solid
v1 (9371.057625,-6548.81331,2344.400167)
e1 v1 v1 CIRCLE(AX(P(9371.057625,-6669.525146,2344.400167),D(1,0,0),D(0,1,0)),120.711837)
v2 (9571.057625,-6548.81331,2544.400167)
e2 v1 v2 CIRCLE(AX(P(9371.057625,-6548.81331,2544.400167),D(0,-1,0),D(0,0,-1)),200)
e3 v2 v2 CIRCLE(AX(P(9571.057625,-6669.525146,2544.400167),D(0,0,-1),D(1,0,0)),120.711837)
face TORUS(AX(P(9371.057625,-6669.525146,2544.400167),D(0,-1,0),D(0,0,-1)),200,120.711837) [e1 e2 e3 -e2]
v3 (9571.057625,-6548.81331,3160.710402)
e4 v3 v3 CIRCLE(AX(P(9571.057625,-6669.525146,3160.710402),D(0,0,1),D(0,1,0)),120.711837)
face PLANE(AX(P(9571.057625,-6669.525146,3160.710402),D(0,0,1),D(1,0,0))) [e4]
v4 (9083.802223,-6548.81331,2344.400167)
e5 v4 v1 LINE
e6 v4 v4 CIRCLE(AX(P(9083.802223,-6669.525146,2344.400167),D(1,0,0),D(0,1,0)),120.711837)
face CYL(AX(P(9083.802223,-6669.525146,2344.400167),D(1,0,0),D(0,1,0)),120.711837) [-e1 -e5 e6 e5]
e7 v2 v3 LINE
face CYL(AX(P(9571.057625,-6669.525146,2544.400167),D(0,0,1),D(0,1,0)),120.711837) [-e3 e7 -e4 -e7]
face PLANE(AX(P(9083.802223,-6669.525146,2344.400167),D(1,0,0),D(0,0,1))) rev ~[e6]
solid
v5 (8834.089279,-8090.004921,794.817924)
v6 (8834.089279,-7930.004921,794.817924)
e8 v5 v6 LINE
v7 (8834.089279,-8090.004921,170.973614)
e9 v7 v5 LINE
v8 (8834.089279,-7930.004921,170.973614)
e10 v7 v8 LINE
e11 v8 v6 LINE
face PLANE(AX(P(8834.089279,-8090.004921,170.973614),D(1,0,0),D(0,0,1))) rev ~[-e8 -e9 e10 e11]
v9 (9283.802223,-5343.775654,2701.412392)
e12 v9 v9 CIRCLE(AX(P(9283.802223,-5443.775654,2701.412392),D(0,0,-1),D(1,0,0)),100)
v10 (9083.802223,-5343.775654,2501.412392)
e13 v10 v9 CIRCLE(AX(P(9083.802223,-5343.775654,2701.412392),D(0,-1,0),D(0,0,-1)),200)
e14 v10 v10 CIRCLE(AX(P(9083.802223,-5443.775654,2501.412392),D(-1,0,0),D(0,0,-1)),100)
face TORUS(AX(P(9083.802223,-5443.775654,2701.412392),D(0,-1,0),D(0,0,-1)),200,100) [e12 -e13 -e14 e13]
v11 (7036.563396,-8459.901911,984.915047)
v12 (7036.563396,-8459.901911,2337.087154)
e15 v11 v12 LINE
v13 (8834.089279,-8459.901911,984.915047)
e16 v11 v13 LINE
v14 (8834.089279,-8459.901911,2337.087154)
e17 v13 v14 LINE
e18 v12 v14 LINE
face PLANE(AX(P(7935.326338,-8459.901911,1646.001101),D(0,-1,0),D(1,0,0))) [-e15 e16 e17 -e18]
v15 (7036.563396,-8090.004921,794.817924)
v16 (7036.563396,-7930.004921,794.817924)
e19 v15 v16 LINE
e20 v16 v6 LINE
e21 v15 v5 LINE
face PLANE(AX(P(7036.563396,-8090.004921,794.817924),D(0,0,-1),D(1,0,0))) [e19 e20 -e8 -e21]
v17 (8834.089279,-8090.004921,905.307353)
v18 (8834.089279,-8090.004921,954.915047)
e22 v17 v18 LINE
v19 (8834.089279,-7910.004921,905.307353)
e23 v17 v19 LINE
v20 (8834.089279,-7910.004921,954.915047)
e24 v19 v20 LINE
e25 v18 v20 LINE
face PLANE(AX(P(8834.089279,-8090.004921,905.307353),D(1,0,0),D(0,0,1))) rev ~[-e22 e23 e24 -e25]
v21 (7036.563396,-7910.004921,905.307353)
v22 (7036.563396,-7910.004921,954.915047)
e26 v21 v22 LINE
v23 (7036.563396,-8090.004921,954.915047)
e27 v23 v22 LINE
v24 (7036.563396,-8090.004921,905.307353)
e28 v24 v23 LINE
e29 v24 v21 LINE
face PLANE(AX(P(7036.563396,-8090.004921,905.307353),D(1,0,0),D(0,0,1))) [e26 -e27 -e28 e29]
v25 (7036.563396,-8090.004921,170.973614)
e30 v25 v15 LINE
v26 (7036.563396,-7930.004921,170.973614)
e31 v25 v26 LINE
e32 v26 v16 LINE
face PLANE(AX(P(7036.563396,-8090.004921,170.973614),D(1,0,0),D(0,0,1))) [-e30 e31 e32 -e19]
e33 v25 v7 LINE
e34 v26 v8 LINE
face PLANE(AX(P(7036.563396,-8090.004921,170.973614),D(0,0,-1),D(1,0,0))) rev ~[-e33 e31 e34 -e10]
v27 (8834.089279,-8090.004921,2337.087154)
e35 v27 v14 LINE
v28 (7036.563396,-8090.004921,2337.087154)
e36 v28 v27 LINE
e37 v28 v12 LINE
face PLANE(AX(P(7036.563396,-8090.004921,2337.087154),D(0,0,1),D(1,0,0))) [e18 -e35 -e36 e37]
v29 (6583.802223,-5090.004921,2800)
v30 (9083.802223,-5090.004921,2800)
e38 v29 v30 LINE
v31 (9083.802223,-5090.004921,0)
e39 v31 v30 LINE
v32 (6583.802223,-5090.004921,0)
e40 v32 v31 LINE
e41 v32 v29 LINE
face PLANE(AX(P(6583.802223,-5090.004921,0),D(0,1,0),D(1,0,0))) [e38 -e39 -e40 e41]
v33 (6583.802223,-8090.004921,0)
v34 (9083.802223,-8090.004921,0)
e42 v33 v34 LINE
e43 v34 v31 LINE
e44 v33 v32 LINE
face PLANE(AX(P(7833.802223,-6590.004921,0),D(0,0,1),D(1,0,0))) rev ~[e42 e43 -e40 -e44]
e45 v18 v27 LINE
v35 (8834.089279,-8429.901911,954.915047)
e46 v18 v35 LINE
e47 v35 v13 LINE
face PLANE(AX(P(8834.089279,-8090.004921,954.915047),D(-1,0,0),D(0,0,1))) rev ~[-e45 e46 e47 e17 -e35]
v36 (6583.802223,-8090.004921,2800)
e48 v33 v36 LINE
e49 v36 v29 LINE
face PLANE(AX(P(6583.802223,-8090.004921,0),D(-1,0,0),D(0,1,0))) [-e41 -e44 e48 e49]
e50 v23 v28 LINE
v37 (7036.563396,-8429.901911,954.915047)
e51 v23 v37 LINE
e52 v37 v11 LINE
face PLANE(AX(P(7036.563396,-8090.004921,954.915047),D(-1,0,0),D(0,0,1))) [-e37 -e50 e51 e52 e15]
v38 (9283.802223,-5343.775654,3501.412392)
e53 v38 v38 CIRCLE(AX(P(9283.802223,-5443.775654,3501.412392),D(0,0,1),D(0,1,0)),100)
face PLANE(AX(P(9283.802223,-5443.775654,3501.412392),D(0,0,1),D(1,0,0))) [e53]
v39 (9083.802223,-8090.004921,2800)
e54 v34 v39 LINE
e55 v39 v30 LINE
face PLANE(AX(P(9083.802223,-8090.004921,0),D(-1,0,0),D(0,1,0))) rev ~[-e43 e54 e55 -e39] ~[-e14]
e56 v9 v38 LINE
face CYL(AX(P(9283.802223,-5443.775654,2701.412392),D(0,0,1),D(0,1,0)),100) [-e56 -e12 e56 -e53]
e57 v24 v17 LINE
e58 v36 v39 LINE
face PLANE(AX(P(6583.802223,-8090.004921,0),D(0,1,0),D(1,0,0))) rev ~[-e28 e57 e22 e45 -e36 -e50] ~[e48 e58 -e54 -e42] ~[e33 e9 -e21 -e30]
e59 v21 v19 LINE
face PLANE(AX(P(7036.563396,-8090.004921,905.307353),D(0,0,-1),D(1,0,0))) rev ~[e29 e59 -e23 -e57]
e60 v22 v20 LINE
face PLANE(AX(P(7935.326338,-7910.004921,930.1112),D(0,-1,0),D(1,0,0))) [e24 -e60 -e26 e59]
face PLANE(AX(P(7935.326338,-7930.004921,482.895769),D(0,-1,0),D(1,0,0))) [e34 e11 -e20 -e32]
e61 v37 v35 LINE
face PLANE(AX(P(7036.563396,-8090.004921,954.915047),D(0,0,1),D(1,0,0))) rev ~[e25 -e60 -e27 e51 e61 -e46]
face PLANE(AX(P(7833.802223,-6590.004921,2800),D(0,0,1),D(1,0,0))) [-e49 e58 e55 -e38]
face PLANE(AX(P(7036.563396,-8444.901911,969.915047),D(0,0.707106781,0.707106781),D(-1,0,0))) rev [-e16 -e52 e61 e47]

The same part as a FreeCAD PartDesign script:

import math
import FreeCAD as App
import Part
import Sketcher

V = App.Vector


def edges_at(feature, points):
    """Names of the edges that pass closest to the given points."""
    edges = feature.Shape.Edges
    near = lambda p: min(range(len(edges)), key=lambda i: edges[i].distToShape(Part.Vertex(*p))[0])
    return sorted({f"Edge{near(p) + 1}" for p in points})


def add_polygon(sketch, points):
    """Adds a closed chain of lines whose ends are joined by coincident constraints."""
    first, n = sketch.GeometryCount, len(points)
    for a, b in zip(points, points[1:] + points[:1]):
        sketch.addGeometry(Part.LineSegment(App.Vector(*a, 0), App.Vector(*b, 0)), False)
    for i in range(n):
        sketch.addConstraint(Sketcher.Constraint("Coincident", first + i, 2, first + (i + 1) % n, 1))

doc = App.newDocument("Part")
params = doc.addObject("Spreadsheet::Sheet", "Params")
for row, (alias, value) in enumerate([
    ("sketch1_width", "2500 mm"),
    ("sketch1_height", "3000 mm"),
    ("pad1_length", "2800 mm"),
    ("pad2_length", "369.89699 mm"),
    ("pocket1_length", "180 mm"),
    ("pocket2_length", "160 mm"),
    ("sketch5_diameter", "200 mm"),
    ("sketch6_radius", "200 mm"),
    ("sketch6_height", "800 mm"),
    ("sketch6_width", "200 mm"),
    ("chamfer_size", "30 mm"),
    ("sketch8_radius", "200 mm"),
], start=1):
    params.set(f"A{row}", alias)
    params.set(f"B{row}", "=" + value)
    params.setAlias(f"B{row}", alias)

body = doc.addObject("PartDesign::Body", "Body")

# Sketch on XY plane
sketch1 = body.newObject("Sketcher::SketchObject", "Sketch")
sketch1.AttachmentSupport = (doc.getObject("XY_Plane"), [""])
sketch1.MapMode = "FlatFace"
add_polygon(sketch1, [(6583.802223, -5090.004921), (6583.802223, -8090.004921), (9083.802223, -8090.004921), (9083.802223, -5090.004921)])  # lines 0-3
sketch1.addConstraint([
    Sketcher.Constraint("Vertical", 0),
    Sketcher.Constraint("Horizontal", 1),
    Sketcher.Constraint("Vertical", 2),
    Sketcher.Constraint("Horizontal", 3),
    Sketcher.Constraint("DistanceX", 1, 1, 1, 2, 2500.0),
    Sketcher.Constraint("DistanceY", 0, 2, 0, 1, 3000.0),
    Sketcher.Constraint("DistanceY", 0, 2, -1, 1, 8090.004921),
    Sketcher.Constraint("DistanceX", -1, 1, 0, 2, 6583.802223),
])
sketch1.setExpression("Constraints[8]", "Params.sketch1_width")
sketch1.setExpression("Constraints[9]", "Params.sketch1_height")
pad1 = body.newObject("PartDesign::Pad", "Pad")
pad1.Profile = sketch1
pad1.setExpression("Length", "Params.pad1_length")

# Sketch on XZ plane
sketch2 = body.newObject("Sketcher::SketchObject", "Sketch001")
sketch2.AttachmentSupport = (doc.getObject("XZ_Plane"), [""])
sketch2.MapMode = "FlatFace"
sketch2.AttachmentOffset = App.Placement(V(0, 0, 8090.004921), App.Rotation())
add_polygon(sketch2, [(7036.563396, 2337.087154), (7036.563396, 954.915047), (8834.089279, 954.915047), (8834.089279, 2337.087154)])  # lines 0-3
sketch2.addConstraint([
    Sketcher.Constraint("Vertical", 0),
    Sketcher.Constraint("Horizontal", 1),
    Sketcher.Constraint("Vertical", 2),
    Sketcher.Constraint("Horizontal", 3),
    Sketcher.Constraint("DistanceX", 1, 1, 1, 2, 1797.525883),
    Sketcher.Constraint("DistanceY", 0, 2, 0, 1, 1382.172108),
    Sketcher.Constraint("DistanceX", -1, 1, 1, 2, 8834.089279),
    Sketcher.Constraint("DistanceY", -1, 1, 0, 2, 954.915047),
])
pad2 = body.newObject("PartDesign::Pad", "Pad001")
pad2.Profile = sketch2
pad2.setExpression("Length", "Params.pad2_length")

# Sketch on XZ plane
sketch3 = body.newObject("Sketcher::SketchObject", "Sketch002")
sketch3.AttachmentSupport = (doc.getObject("XZ_Plane"), [""])
sketch3.MapMode = "FlatFace"
sketch3.AttachmentOffset = App.Placement(V(0, 0, 8090.004921), App.Rotation())
add_polygon(sketch3, [(7036.563396, 954.915047), (7036.563396, 905.307353), (8834.089279, 905.307353), (8834.089279, 954.915047)])  # lines 0-3
sketch3.addConstraint([
    Sketcher.Constraint("Vertical", 0),
    Sketcher.Constraint("Horizontal", 1),
    Sketcher.Constraint("Vertical", 2),
    Sketcher.Constraint("Horizontal", 3),
    Sketcher.Constraint("DistanceX", 1, 1, 1, 2, 1797.525883),
    Sketcher.Constraint("DistanceY", 0, 2, 0, 1, 49.607694),
    Sketcher.Constraint("DistanceX", -1, 1, 1, 2, 8834.089279),
    Sketcher.Constraint("DistanceY", -1, 1, 0, 2, 905.307353),
])
pocket1 = body.newObject("PartDesign::Pocket", "Pocket")
pocket1.Profile = sketch3
pocket1.setExpression("Length", "Params.pocket1_length")

# Sketch on XZ plane
sketch4 = body.newObject("Sketcher::SketchObject", "Sketch003")
sketch4.AttachmentSupport = (doc.getObject("XZ_Plane"), [""])
sketch4.MapMode = "FlatFace"
sketch4.AttachmentOffset = App.Placement(V(0, 0, 8090.004921), App.Rotation())
add_polygon(sketch4, [(7036.563396, 794.817925), (7036.563396, 170.973614), (8834.089279, 170.973614), (8834.089279, 794.817925)])  # lines 0-3
sketch4.addConstraint([
    Sketcher.Constraint("Vertical", 0),
    Sketcher.Constraint("Horizontal", 1),
    Sketcher.Constraint("Vertical", 2),
    Sketcher.Constraint("Horizontal", 3),
    Sketcher.Constraint("DistanceY", 0, 2, 0, 1, 623.844311),
    Sketcher.Constraint("DistanceX", 1, 1, 1, 2, 1797.525883),
    Sketcher.Constraint("DistanceX", -1, 1, 1, 2, 8834.089279),
    Sketcher.Constraint("DistanceY", -1, 1, 0, 2, 170.973614),
])
pocket2 = body.newObject("PartDesign::Pocket", "Pocket001")
pocket2.Profile = sketch4
pocket2.setExpression("Length", "Params.pocket2_length")

# Sketch on YZ plane
sketch5 = body.newObject("Sketcher::SketchObject", "Sketch004")
sketch5.AttachmentSupport = (doc.getObject("YZ_Plane"), [""])
sketch5.MapMode = "FlatFace"
sketch5.AttachmentOffset = App.Placement(V(0, 0, 9083.802223), App.Rotation())
sketch5.addGeometry(Part.Circle(V(-5443.775654, 2501.412392, 0), V(0, 0, 1), 100), False)
sketch5.addConstraint([
    Sketcher.Constraint("Diameter", 0, 200.0),
    Sketcher.Constraint("DistanceY", -1, 1, 0, 3, 2501.412392),
    Sketcher.Constraint("DistanceX", 0, 3, -1, 1, 5443.775654),
])
sketch5.setExpression("Constraints[0]", "Params.sketch5_diameter")

# Sketch on XZ plane
sketch6 = body.newObject("Sketcher::SketchObject", "Sketch005")
sketch6.AttachmentSupport = (doc.getObject("XZ_Plane"), [""])
sketch6.MapMode = "FlatFace"
sketch6.AttachmentOffset = App.Placement(V(0, 0, 5443.775654), App.Rotation())
sketch6.addGeometry([
    Part.ArcOfCircle(Part.Circle(V(9083.802223, 2701.412392, 0), V(0, 0, 1), 200), math.radians(-90), math.radians(0)),
    Part.LineSegment(V(9283.802223, 2701.412392, 0), V(9283.802223, 3501.412392, 0)),
], False)
sketch6.addConstraint([
    Sketcher.Constraint("Tangent", 0, 2, 1, 1),
    Sketcher.Constraint("Vertical", 1),
    Sketcher.Constraint("Radius", 0, 200.0),
    Sketcher.Constraint("DistanceY", 1, 1, 1, 2, 800.0),
    Sketcher.Constraint("DistanceX", 0, 1, 0, 2, 200.0),
    Sketcher.Constraint("DistanceY", -1, 1, 0, 3, 2701.412392),
    Sketcher.Constraint("DistanceX", -1, 1, 0, 3, 9083.802223),
])
sketch6.setExpression("Constraints[2]", "Params.sketch6_radius")
sketch6.setExpression("Constraints[3]", "Params.sketch6_height")
sketch6.setExpression("Constraints[4]", "Params.sketch6_width")
doc.recompute()

additivepipe = body.newObject("PartDesign::AdditivePipe", "AdditivePipe")
additivepipe.Profile = sketch5
additivepipe.Spine = (sketch6, ["Edge1", "Edge2"])
doc.recompute()

chamfer = body.newObject("PartDesign::Chamfer", "Chamfer")
chamfer.Base = (additivepipe, edges_at(additivepipe, [(7935.326, -8459.902, 954.915)]))
chamfer.setExpression("Size", "Params.chamfer_size")
body2 = doc.addObject("PartDesign::Body", "Body001")

# Sketch on YZ plane
sketch7 = body2.newObject("Sketcher::SketchObject", "Sketch006")
sketch7.AttachmentSupport = (doc.getObject("YZ_Plane001"), [""])
sketch7.MapMode = "FlatFace"
sketch7.AttachmentOffset = App.Placement(V(0, 0, 9083.802223), App.Rotation())
sketch7.addGeometry(Part.Circle(V(-6669.525146, 2344.400167, 0), V(0, 0, 1), 120.711837), False)
sketch7.addConstraint([
    Sketcher.Constraint("Diameter", 0, 241.423674),
    Sketcher.Constraint("DistanceX", 0, 3, -1, 1, 6669.525146),
    Sketcher.Constraint("DistanceY", -1, 1, 0, 3, 2344.400167),
])

# Sketch on XZ plane
sketch8 = body2.newObject("Sketcher::SketchObject", "Sketch007")
sketch8.AttachmentSupport = (doc.getObject("XZ_Plane001"), [""])
sketch8.MapMode = "FlatFace"
sketch8.AttachmentOffset = App.Placement(V(0, 0, 6669.525146), App.Rotation())
sketch8.addGeometry([
    Part.LineSegment(V(9083.802223, 2344.400167, 0), V(9371.057625, 2344.400167, 0)),
    Part.ArcOfCircle(Part.Circle(V(9371.057625, 2544.400167, 0), V(0, 0, 1), 200), math.radians(-90), math.radians(0)),
    Part.LineSegment(V(9571.057625, 2544.400167, 0), V(9571.057625, 3160.710402, 0)),
], False)
sketch8.addConstraint([
    Sketcher.Constraint("Tangent", 0, 2, 1, 1),
    Sketcher.Constraint("Tangent", 1, 2, 2, 1),
    Sketcher.Constraint("Horizontal", 0),
    Sketcher.Constraint("Vertical", 2),
    Sketcher.Constraint("Radius", 1, 200.0),
    Sketcher.Constraint("DistanceX", 0, 1, 0, 2, 287.255402),
    Sketcher.Constraint("DistanceY", -1, 1, 2, 2, 3160.710402),
    Sketcher.Constraint("DistanceY", 2, 1, 2, 2, 616.310234),
    Sketcher.Constraint("DistanceX", -1, 1, 1, 3, 9371.057625),
])
sketch8.setExpression("Constraints[4]", "Params.sketch8_radius")
doc.recompute()

additivepipe2 = body2.newObject("PartDesign::AdditivePipe", "AdditivePipe001")
additivepipe2.Profile = sketch7
additivepipe2.Spine = (sketch8, ["Edge1", "Edge2", "Edge3"])

doc.recompute()
